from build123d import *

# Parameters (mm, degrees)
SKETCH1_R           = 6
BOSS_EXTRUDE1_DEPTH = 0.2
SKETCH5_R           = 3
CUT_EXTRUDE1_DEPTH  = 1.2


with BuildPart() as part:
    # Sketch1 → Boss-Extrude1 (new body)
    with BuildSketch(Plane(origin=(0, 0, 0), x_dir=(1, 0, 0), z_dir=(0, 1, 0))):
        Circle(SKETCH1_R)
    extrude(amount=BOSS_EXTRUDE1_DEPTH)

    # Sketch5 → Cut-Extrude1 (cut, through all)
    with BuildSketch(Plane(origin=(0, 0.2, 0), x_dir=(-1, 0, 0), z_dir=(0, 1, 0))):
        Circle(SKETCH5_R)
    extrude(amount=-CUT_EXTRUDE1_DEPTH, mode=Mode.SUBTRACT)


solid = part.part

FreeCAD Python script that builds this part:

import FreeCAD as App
import Part
import Sketcher

V = App.Vector

doc = App.newDocument("Part")
body = doc.addObject("PartDesign::Body", "Body")

# Sketch on XZ plane
sketch1 = doc.addObject("Sketcher::SketchObject", "Sketch")
body.addObject(sketch1)
sketch1.AttachmentSupport = (doc.XZ_Plane, [""])
sketch1.MapMode = "FlatFace"
sketch1.addGeometry(Part.Circle(V(0, 0, 0), V(0, 0, 1), 6), False)
sketch1.addConstraint([
    Sketcher.Constraint("Coincident", 0, 3, -1, 1),
    Sketcher.Constraint("Diameter", 0, 12.0),
])
pad1 = doc.addObject("PartDesign::Pad", "Pad")
body.addObject(pad1)
pad1.Profile = sketch1
pad1.Length = 0.2
pad1.Reversed = True

# Sketch on XZ plane
sketch2 = doc.addObject("Sketcher::SketchObject", "Sketch001")
body.addObject(sketch2)
sketch2.AttachmentSupport = (doc.XZ_Plane, [""])
sketch2.MapMode = "FlatFace"
sketch2.AttachmentOffset = App.Placement(V(0, 0, -0.2), App.Rotation())
sketch2.addGeometry(Part.Circle(V(0, 0, 0), V(0, 0, 1), 3), False)
sketch2.addConstraint([
    Sketcher.Constraint("Coincident", 0, 3, -1, 1),
    Sketcher.Constraint("Diameter", 0, 6.0),
])
pocket1 = doc.addObject("PartDesign::Pocket", "Pocket")
body.addObject(pocket1)
pocket1.Profile = sketch2
pocket1.Type = "ThroughAll"
pocket1.Reversed = True

doc.recompute()
